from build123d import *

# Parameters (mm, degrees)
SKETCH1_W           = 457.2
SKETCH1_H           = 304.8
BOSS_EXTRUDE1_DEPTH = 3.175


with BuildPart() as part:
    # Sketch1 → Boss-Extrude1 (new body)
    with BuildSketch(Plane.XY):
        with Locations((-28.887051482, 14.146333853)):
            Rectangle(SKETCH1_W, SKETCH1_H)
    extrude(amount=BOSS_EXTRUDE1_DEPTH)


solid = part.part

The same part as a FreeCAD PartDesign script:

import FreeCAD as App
import Part
import Sketcher

V = App.Vector
Q = App.Units.Quantity

doc = App.newDocument("Part")
body = doc.addObject("PartDesign::Body", "Body")

sketch1 = body.newObject("Sketcher::SketchObject", "Sketch")
sketch1.AttachmentSupport = (doc.getObject("XY_Plane"), [""])
sketch1.MapMode = "FlatFace"
sketch1.addGeometry([
    Part.LineSegment(V(-257, 167, 0), V(-257, -138, 0)),
    Part.LineSegment(V(-257, -138, 0), V(200, -138, 0)),
    Part.LineSegment(V(200, -138, 0), V(200, 167, 0)),
    Part.LineSegment(V(200, 167, 0), V(-257, 167, 0)),
], False)
sketch1.addConstraint([
    Sketcher.Constraint("Coincident", 0, 2, 1, 1),
    Sketcher.Constraint("Coincident", 1, 2, 2, 1),
    Sketcher.Constraint("Coincident", 2, 2, 3, 1),
    Sketcher.Constraint("Coincident", 3, 2, 0, 1),
    Sketcher.Constraint("Vertical", 0),
    Sketcher.Constraint("Horizontal", 1),
    Sketcher.Constraint("Vertical", 2),
    Sketcher.Constraint("Horizontal", 3),
    Sketcher.Constraint("DistanceX", 1, 1, 1, 2, Q("18 in")),
    Sketcher.Constraint("DistanceY", 0, 2, 0, 1, Q("12 in")),
    Sketcher.Constraint("DistanceX", 0, 2, -1, 1, 257.487051),
    Sketcher.Constraint("DistanceY", 0, 2, -1, 1, 138.253666),
])
pad1 = body.newObject("PartDesign::Pad", "Pad")
pad1.Profile = sketch1
pad1.Length = Q("0.125 in")

doc.recompute()
